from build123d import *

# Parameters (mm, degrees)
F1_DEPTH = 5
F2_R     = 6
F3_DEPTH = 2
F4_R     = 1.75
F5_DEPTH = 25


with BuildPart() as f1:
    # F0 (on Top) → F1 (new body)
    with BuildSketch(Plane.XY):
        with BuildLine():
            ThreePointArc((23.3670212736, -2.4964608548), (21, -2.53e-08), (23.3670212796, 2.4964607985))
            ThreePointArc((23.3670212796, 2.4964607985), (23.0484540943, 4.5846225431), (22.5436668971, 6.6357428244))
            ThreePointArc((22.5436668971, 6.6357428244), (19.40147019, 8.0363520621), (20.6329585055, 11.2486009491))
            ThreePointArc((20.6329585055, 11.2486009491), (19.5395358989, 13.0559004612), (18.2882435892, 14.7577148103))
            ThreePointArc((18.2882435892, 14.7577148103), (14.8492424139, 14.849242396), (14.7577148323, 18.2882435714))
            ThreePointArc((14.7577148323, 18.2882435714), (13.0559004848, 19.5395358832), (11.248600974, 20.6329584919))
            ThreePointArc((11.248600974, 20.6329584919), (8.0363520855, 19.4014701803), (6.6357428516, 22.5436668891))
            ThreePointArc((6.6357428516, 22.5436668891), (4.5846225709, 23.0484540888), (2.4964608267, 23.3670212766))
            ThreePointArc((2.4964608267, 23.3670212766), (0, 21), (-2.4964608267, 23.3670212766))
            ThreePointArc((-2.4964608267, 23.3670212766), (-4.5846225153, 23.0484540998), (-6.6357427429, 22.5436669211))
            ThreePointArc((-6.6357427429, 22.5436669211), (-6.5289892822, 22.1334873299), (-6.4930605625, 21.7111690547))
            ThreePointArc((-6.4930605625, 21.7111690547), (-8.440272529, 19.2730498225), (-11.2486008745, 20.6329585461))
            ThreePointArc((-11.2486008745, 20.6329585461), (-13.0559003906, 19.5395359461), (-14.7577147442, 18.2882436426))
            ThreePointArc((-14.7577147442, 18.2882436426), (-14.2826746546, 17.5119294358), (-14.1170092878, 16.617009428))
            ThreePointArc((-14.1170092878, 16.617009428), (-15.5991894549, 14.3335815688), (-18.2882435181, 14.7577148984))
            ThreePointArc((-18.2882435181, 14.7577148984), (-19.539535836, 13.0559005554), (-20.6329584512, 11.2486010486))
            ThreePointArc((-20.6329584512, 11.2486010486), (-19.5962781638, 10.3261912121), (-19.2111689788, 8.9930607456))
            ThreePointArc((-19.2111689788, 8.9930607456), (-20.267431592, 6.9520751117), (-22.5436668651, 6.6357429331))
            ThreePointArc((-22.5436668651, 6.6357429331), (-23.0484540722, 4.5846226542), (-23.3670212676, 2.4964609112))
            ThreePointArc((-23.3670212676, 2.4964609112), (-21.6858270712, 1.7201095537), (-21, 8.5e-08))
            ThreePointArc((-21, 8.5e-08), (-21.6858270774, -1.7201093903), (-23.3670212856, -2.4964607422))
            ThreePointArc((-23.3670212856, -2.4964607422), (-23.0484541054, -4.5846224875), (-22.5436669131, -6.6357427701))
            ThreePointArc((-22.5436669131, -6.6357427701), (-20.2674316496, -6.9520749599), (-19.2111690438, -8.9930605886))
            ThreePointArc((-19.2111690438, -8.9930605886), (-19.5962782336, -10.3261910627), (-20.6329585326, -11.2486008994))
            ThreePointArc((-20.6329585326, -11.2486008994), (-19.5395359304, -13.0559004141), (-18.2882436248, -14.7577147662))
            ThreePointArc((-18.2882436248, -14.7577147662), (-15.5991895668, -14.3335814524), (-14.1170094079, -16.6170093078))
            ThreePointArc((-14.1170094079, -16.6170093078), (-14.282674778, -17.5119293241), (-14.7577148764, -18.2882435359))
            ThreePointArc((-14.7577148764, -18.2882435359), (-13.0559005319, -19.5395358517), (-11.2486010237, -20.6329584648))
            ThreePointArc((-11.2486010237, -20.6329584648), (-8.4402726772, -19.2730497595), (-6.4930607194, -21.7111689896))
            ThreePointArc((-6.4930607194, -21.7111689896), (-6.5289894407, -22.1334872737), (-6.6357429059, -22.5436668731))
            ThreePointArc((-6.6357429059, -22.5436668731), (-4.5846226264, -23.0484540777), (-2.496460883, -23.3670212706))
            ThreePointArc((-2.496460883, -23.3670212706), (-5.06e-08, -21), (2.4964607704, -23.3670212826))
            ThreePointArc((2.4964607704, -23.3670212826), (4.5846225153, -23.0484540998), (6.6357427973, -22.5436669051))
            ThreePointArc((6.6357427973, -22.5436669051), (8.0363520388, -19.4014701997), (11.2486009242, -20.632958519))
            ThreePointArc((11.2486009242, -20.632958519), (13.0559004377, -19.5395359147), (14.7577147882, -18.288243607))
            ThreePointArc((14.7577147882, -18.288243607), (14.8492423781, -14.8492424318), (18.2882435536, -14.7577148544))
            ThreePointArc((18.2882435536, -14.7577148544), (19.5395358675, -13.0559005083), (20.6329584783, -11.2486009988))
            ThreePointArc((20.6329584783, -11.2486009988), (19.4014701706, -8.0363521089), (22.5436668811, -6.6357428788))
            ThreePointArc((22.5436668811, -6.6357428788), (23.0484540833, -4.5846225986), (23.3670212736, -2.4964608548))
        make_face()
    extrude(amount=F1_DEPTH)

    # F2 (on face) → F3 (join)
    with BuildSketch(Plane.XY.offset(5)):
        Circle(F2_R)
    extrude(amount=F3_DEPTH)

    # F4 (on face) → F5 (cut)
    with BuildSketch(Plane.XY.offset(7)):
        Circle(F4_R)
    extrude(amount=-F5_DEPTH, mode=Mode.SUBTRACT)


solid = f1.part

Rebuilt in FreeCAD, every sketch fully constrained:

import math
import FreeCAD as App
import Part
import Sketcher

doc = App.newDocument("Part")
body = doc.addObject("PartDesign::Body", "Body")

sketch1 = doc.addObject("Sketcher::SketchObject", "Sketch")
body.addObject(sketch1)
sketch1.AttachmentSupport = (doc.XY_Plane, [""])
sketch1.MapMode = "FlatFace"
sketch1.addGeometry([
    Part.ArcOfCircle(Part.Circle(App.Vector(23.5, 0, 0), App.Vector(0, 0, 1), 2.5), math.radians(93), math.radians(267)),
    Part.ArcOfCircle(Part.Circle(App.Vector(0, 0, 0), App.Vector(0, 0, 1), 23.5), math.radians(6.1), math.radians(16.4)),
    Part.ArcOfCircle(Part.Circle(App.Vector(21.7, 9, 0), App.Vector(0, 0, 1), 2.5), math.radians(116), math.radians(289)),
    Part.ArcOfCircle(Part.Circle(App.Vector(0, 0, 0), App.Vector(0, 0, 1), 23.5), math.radians(28.6), math.radians(38.9)),
    Part.ArcOfCircle(Part.Circle(App.Vector(16.6, 16.6, 0), App.Vector(0, 0, 1), 2.5), math.radians(138), math.radians(312)),
    Part.ArcOfCircle(Part.Circle(App.Vector(0, 0, 0), App.Vector(0, 0, 1), 23.5), math.radians(51.1), math.radians(61.4)),
    Part.ArcOfCircle(Part.Circle(App.Vector(9, 21.7, 0), App.Vector(0, 0, 1), 2.5), math.radians(161), math.radians(334)),
    Part.ArcOfCircle(Part.Circle(App.Vector(0, 0, 0), App.Vector(0, 0, 1), 23.5), math.radians(73.6), math.radians(83.9)),
    Part.ArcOfCircle(Part.Circle(App.Vector(0, 23.5, 0), App.Vector(0, 0, 1), 2.5), math.radians(-177), math.radians(-3)),
    Part.ArcOfCircle(Part.Circle(App.Vector(0, 0, 0), App.Vector(0, 0, 1), 23.5), math.radians(96.1), math.radians(106.4)),
    Part.ArcOfCircle(Part.Circle(App.Vector(-9, 21.7, 0), App.Vector(0, 0, 1), 2.5), math.radians(0), math.radians(19.45)),
    Part.ArcOfCircle(Part.Circle(App.Vector(-9, 21.7, 0), App.Vector(0, 0, 1), 2.5), math.radians(-154), math.radians(0)),
    Part.ArcOfCircle(Part.Circle(App.Vector(0, 0, 0), App.Vector(0, 0, 1), 23.5), math.radians(118.6), math.radians(128.9)),
    Part.ArcOfCircle(Part.Circle(App.Vector(-16.6, 16.6, 0), App.Vector(0, 0, 1), 2.5), math.radians(0), math.radians(42)),
    Part.ArcOfCircle(Part.Circle(App.Vector(-16.6, 16.6, 0), App.Vector(0, 0, 1), 2.5), math.radians(-132), math.radians(0)),
    Part.ArcOfCircle(Part.Circle(App.Vector(0, 0, 0), App.Vector(0, 0, 1), 23.5), math.radians(141.1), math.radians(151.4)),
    Part.ArcOfCircle(Part.Circle(App.Vector(-21.7, 9, 0), App.Vector(0, 0, 1), 2.5), math.radians(0), math.radians(64)),
    Part.ArcOfCircle(Part.Circle(App.Vector(-21.7, 9, 0), App.Vector(0, 0, 1), 2.5), math.radians(-109), math.radians(0)),
    Part.ArcOfCircle(Part.Circle(App.Vector(0, 0, 0), App.Vector(0, 0, 1), 23.5), math.radians(163.6), math.radians(173.9)),
    Part.ArcOfCircle(Part.Circle(App.Vector(-23.5, 0, 0), App.Vector(0, 0, 1), 2.5), math.radians(0), math.radians(87)),
    Part.ArcOfCircle(Part.Circle(App.Vector(-23.5, 0, 0), App.Vector(0, 0, 1), 2.5), math.radians(-87), math.radians(0)),
    Part.ArcOfCircle(Part.Circle(App.Vector(0, 0, 0), App.Vector(0, 0, 1), 23.5), math.radians(-173.9), math.radians(-163.6)),
    Part.ArcOfCircle(Part.Circle(App.Vector(-21.7, -9, 0), App.Vector(0, 0, 1), 2.5), math.radians(0), math.radians(109)),
    Part.ArcOfCircle(Part.Circle(App.Vector(-21.7, -9, 0), App.Vector(0, 0, 1), 2.5), math.radians(-64), math.radians(0)),
    Part.ArcOfCircle(Part.Circle(App.Vector(0, 0, 0), App.Vector(0, 0, 1), 23.5), math.radians(-151.4), math.radians(-141.1)),
    Part.ArcOfCircle(Part.Circle(App.Vector(-16.6, -16.6, 0), App.Vector(0, 0, 1), 2.5), math.radians(0), math.radians(132)),
    Part.ArcOfCircle(Part.Circle(App.Vector(-16.6, -16.6, 0), App.Vector(0, 0, 1), 2.5), math.radians(-42), math.radians(0)),
    Part.ArcOfCircle(Part.Circle(App.Vector(0, 0, 0), App.Vector(0, 0, 1), 23.5), math.radians(-128.9), math.radians(-118.6)),
    Part.ArcOfCircle(Part.Circle(App.Vector(-9, -21.7, 0), App.Vector(0, 0, 1), 2.5), math.radians(0), math.radians(154)),
    Part.ArcOfCircle(Part.Circle(App.Vector(-9, -21.7, 0), App.Vector(0, 0, 1), 2.5), math.radians(-19.45), math.radians(0)),
    Part.ArcOfCircle(Part.Circle(App.Vector(0, 0, 0), App.Vector(0, 0, 1), 23.5), math.radians(-106.4), math.radians(-96.1)),
    Part.ArcOfCircle(Part.Circle(App.Vector(0, -23.5, 0), App.Vector(0, 0, 1), 2.5), math.radians(3), math.radians(177)),
    Part.ArcOfCircle(Part.Circle(App.Vector(0, 0, 0), App.Vector(0, 0, 1), 23.5), math.radians(-83.9), math.radians(-73.6)),
    Part.ArcOfCircle(Part.Circle(App.Vector(9, -21.7, 0), App.Vector(0, 0, 1), 2.5), math.radians(26), math.radians(199)),
    Part.ArcOfCircle(Part.Circle(App.Vector(0, 0, 0), App.Vector(0, 0, 1), 23.5), math.radians(-61.4), math.radians(-51.1)),
    Part.ArcOfCircle(Part.Circle(App.Vector(16.6, -16.6, 0), App.Vector(0, 0, 1), 2.5), math.radians(48), math.radians(222)),
    Part.ArcOfCircle(Part.Circle(App.Vector(0, 0, 0), App.Vector(0, 0, 1), 23.5), math.radians(-38.9), math.radians(-28.6)),
    Part.ArcOfCircle(Part.Circle(App.Vector(21.7, -9, 0), App.Vector(0, 0, 1), 2.5), math.radians(71), math.radians(244)),
    Part.ArcOfCircle(Part.Circle(App.Vector(0, 0, 0), App.Vector(0, 0, 1), 23.5), math.radians(-16.4), math.radians(-6.1)),
], False)
sketch1.addConstraint([
    Sketcher.Constraint("Coincident", 0, 1, 1, 1),
    Sketcher.Constraint("Coincident", 1, 2, 2, 2),
    Sketcher.Constraint("Coincident", 2, 1, 3, 1),
    Sketcher.Constraint("Coincident", 3, 2, 4, 2),
    Sketcher.Constraint("Coincident", 4, 1, 5, 1),
    Sketcher.Constraint("Coincident", 5, 2, 6, 2),
    Sketcher.Constraint("Coincident", 6, 1, 7, 1),
    Sketcher.Constraint("Coincident", 7, 2, 8, 2),
    Sketcher.Constraint("Coincident", 8, 1, 9, 1),
    Sketcher.Constraint("Coincident", 9, 2, 10, 2),
    Sketcher.Constraint("Tangent", 10, 1, 11, 2),
    Sketcher.Constraint("Coincident", 11, 1, 12, 1),
    Sketcher.Constraint("Coincident", 12, 2, 13, 2),
    Sketcher.Constraint("Tangent", 13, 1, 14, 2),
    Sketcher.Constraint("Coincident", 14, 1, 15, 1),
    Sketcher.Constraint("Coincident", 15, 2, 16, 2),
    Sketcher.Constraint("Tangent", 16, 1, 17, 2),
    Sketcher.Constraint("Coincident", 17, 1, 18, 1),
    Sketcher.Constraint("Coincident", 18, 2, 19, 2),
    Sketcher.Constraint("Tangent", 19, 1, 20, 2),
    Sketcher.Constraint("Coincident", 20, 1, 21, 1),
    Sketcher.Constraint("Coincident", 21, 2, 22, 2),
    Sketcher.Constraint("Tangent", 22, 1, 23, 2),
    Sketcher.Constraint("Coincident", 23, 1, 24, 1),
    Sketcher.Constraint("Coincident", 24, 2, 25, 2),
    Sketcher.Constraint("Tangent", 25, 1, 26, 2),
    Sketcher.Constraint("Coincident", 26, 1, 27, 1),
    Sketcher.Constraint("Coincident", 27, 2, 28, 2),
    Sketcher.Constraint("Tangent", 28, 1, 29, 2),
    Sketcher.Constraint("Coincident", 29, 1, 30, 1),
    Sketcher.Constraint("Coincident", 30, 2, 31, 2),
    Sketcher.Constraint("Coincident", 31, 1, 32, 1),
    Sketcher.Constraint("Coincident", 32, 2, 33, 2),
    Sketcher.Constraint("Coincident", 33, 1, 34, 1),
    Sketcher.Constraint("Coincident", 34, 2, 35, 2),
    Sketcher.Constraint("Coincident", 35, 1, 36, 1),
    Sketcher.Constraint("Coincident", 36, 2, 37, 2),
    Sketcher.Constraint("Coincident", 37, 1, 38, 1),
    Sketcher.Constraint("Coincident", 38, 2, 0, 2),
    Sketcher.Constraint("Coincident", 1, 3, -1, 1),
    Sketcher.Constraint("Coincident", 3, 3, -1, 1),
    Sketcher.Constraint("Coincident", 5, 3, -1, 1),
    Sketcher.Constraint("Coincident", 7, 3, -1, 1),
    Sketcher.Constraint("Coincident", 9, 3, -1, 1),
    Sketcher.Constraint("Coincident", 12, 3, -1, 1),
    Sketcher.Constraint("Coincident", 15, 3, -1, 1),
    Sketcher.Constraint("Coincident", 18, 3, -1, 1),
    Sketcher.Constraint("Coincident", 21, 3, -1, 1),
    Sketcher.Constraint("Coincident", 24, 3, -1, 1),
    Sketcher.Constraint("Coincident", 27, 3, -1, 1),
    Sketcher.Constraint("Coincident", 30, 3, -1, 1),
    Sketcher.Constraint("Coincident", 32, 3, -1, 1),
    Sketcher.Constraint("Coincident", 34, 3, -1, 1),
    Sketcher.Constraint("Coincident", 36, 3, -1, 1),
    Sketcher.Constraint("Coincident", 38, 3, -1, 1),
    Sketcher.Constraint("Equal", 0, 2),
    Sketcher.Constraint("Equal", 1, 3),
    Sketcher.Constraint("Equal", 2, 4),
    Sketcher.Constraint("Equal", 3, 5),
    Sketcher.Constraint("Equal", 4, 6),
    Sketcher.Constraint("Equal", 5, 7),
    Sketcher.Constraint("Equal", 6, 8),
    Sketcher.Constraint("Equal", 7, 9),
    Sketcher.Constraint("Equal", 8, 10),
    Sketcher.Constraint("Equal", 10, 11),
    Sketcher.Constraint("Equal", 9, 12),
    Sketcher.Constraint("Equal", 11, 13),
    Sketcher.Constraint("Equal", 13, 14),
    Sketcher.Constraint("Equal", 12, 15),
    Sketcher.Constraint("Equal", 14, 16),
    Sketcher.Constraint("Equal", 16, 17),
    Sketcher.Constraint("Equal", 15, 18),
    Sketcher.Constraint("Equal", 17, 19),
    Sketcher.Constraint("Equal", 19, 20),
    Sketcher.Constraint("Equal", 18, 21),
    Sketcher.Constraint("Equal", 20, 22),
    Sketcher.Constraint("Equal", 22, 23),
    Sketcher.Constraint("Equal", 21, 24),
    Sketcher.Constraint("Equal", 23, 25),
    Sketcher.Constraint("Equal", 25, 26),
    Sketcher.Constraint("Equal", 24, 27),
    Sketcher.Constraint("Equal", 26, 28),
    Sketcher.Constraint("Equal", 28, 29),
    Sketcher.Constraint("Equal", 27, 30),
    Sketcher.Constraint("Equal", 29, 31),
    Sketcher.Constraint("Equal", 30, 32),
    Sketcher.Constraint("Equal", 31, 33),
    Sketcher.Constraint("Equal", 32, 34),
    Sketcher.Constraint("Equal", 33, 35),
    Sketcher.Constraint("Equal", 34, 36),
    Sketcher.Constraint("Equal", 35, 37),
    Sketcher.Constraint("Equal", 36, 38),
    Sketcher.Constraint("Symmetric", 0, 3, 19, 3, -1, 1),
    Sketcher.Constraint("Symmetric", 2, 3, 22, 3, -1, 1),
    Sketcher.Constraint("Symmetric", 4, 3, 25, 3, -1, 1),
    Sketcher.Constraint("Symmetric", 6, 3, 28, 3, -1, 1),
    Sketcher.Constraint("Symmetric", 8, 3, 31, 3, -1, 1),
    Sketcher.Constraint("Symmetric", 10, 3, 33, 3, -1, 1),
    Sketcher.Constraint("Symmetric", 13, 3, 35, 3, -1, 1),
    Sketcher.Constraint("Symmetric", 16, 3, 37, 3, -1, 1),
    Sketcher.Constraint("Symmetric", 6, 3, 10, 3, -2),
    Sketcher.Constraint("Symmetric", 4, 3, 13, 3, -2),
    Sketcher.Constraint("Symmetric", 2, 3, 16, 3, -2),
    Sketcher.Constraint("PointOnObject", 0, 3, -1),
    Sketcher.Constraint("PointOnObject", 8, 3, -2),
    Sketcher.Constraint("PointOnObject", 19, 1, -1),
    Sketcher.Constraint("Horizontal", 11, 3, 10, 1),
    Sketcher.Constraint("Horizontal", 14, 3, 13, 1),
    Sketcher.Constraint("Horizontal", 17, 3, 16, 1),
    Sketcher.Constraint("Horizontal", 37, 3, 22, 1),
    Sketcher.Constraint("Horizontal", 35, 3, 25, 1),
    Sketcher.Constraint("Horizontal", 33, 3, 28, 1),
    Sketcher.Constraint("Radius", 0, 2.5),
    Sketcher.Constraint("Radius", 1, 23.5),
    Sketcher.Constraint("DistanceX", 19, 1, -1, 1, 21.0),
    Sketcher.Constraint("DistanceY", -1, 1, 8, 3, 23.5),
    Sketcher.Constraint("DistanceY", -1, 1, 2, 1, 11.248601),
    Sketcher.Constraint("DistanceX", -1, 1, 5, 2, 11.248601),
    Sketcher.Constraint("DistanceX", -1, 1, 2, 3, 21.711169),
    Sketcher.Constraint("DistanceX", -1, 1, 4, 3, 16.617009),
    Sketcher.Constraint("DistanceY", -1, 1, 4, 3, 16.617009),
    Sketcher.Constraint("DistanceX", -1, 1, 6, 3, 8.993061),
])
pad1 = doc.addObject("PartDesign::Pad", "Pad")
body.addObject(pad1)
pad1.Profile = sketch1
pad1.Length = 5

sketch2 = doc.addObject("Sketcher::SketchObject", "Sketch001")
body.addObject(sketch2)
sketch2.AttachmentSupport = (doc.XY_Plane, [""])
sketch2.MapMode = "FlatFace"
sketch2.AttachmentOffset = App.Placement(App.Vector(0, 0, 5), App.Rotation())
sketch2.addGeometry(Part.Circle(App.Vector(0, 0, 0), App.Vector(0, 0, 1), 6), False)
sketch2.addConstraint([
    Sketcher.Constraint("Coincident", 0, 3, -1, 1),
    Sketcher.Constraint("Diameter", 0, 12.0),
])
pad2 = doc.addObject("PartDesign::Pad", "Pad001")
body.addObject(pad2)
pad2.Profile = sketch2
pad2.Length = 2

sketch3 = doc.addObject("Sketcher::SketchObject", "Sketch002")
body.addObject(sketch3)
sketch3.AttachmentSupport = (doc.XY_Plane, [""])
sketch3.MapMode = "FlatFace"
sketch3.AttachmentOffset = App.Placement(App.Vector(0, 0, 7), App.Rotation())
sketch3.addGeometry(Part.Circle(App.Vector(0, 0, 0), App.Vector(0, 0, 1), 1.8), False)
sketch3.addConstraint([
    Sketcher.Constraint("Coincident", 0, 3, -1, 1),
    Sketcher.Constraint("Diameter", 0, 3.5),
])
pocket1 = doc.addObject("PartDesign::Pocket", "Pocket")
body.addObject(pocket1)
pocket1.Profile = sketch3
pocket1.Length = 25

doc.recompute()
